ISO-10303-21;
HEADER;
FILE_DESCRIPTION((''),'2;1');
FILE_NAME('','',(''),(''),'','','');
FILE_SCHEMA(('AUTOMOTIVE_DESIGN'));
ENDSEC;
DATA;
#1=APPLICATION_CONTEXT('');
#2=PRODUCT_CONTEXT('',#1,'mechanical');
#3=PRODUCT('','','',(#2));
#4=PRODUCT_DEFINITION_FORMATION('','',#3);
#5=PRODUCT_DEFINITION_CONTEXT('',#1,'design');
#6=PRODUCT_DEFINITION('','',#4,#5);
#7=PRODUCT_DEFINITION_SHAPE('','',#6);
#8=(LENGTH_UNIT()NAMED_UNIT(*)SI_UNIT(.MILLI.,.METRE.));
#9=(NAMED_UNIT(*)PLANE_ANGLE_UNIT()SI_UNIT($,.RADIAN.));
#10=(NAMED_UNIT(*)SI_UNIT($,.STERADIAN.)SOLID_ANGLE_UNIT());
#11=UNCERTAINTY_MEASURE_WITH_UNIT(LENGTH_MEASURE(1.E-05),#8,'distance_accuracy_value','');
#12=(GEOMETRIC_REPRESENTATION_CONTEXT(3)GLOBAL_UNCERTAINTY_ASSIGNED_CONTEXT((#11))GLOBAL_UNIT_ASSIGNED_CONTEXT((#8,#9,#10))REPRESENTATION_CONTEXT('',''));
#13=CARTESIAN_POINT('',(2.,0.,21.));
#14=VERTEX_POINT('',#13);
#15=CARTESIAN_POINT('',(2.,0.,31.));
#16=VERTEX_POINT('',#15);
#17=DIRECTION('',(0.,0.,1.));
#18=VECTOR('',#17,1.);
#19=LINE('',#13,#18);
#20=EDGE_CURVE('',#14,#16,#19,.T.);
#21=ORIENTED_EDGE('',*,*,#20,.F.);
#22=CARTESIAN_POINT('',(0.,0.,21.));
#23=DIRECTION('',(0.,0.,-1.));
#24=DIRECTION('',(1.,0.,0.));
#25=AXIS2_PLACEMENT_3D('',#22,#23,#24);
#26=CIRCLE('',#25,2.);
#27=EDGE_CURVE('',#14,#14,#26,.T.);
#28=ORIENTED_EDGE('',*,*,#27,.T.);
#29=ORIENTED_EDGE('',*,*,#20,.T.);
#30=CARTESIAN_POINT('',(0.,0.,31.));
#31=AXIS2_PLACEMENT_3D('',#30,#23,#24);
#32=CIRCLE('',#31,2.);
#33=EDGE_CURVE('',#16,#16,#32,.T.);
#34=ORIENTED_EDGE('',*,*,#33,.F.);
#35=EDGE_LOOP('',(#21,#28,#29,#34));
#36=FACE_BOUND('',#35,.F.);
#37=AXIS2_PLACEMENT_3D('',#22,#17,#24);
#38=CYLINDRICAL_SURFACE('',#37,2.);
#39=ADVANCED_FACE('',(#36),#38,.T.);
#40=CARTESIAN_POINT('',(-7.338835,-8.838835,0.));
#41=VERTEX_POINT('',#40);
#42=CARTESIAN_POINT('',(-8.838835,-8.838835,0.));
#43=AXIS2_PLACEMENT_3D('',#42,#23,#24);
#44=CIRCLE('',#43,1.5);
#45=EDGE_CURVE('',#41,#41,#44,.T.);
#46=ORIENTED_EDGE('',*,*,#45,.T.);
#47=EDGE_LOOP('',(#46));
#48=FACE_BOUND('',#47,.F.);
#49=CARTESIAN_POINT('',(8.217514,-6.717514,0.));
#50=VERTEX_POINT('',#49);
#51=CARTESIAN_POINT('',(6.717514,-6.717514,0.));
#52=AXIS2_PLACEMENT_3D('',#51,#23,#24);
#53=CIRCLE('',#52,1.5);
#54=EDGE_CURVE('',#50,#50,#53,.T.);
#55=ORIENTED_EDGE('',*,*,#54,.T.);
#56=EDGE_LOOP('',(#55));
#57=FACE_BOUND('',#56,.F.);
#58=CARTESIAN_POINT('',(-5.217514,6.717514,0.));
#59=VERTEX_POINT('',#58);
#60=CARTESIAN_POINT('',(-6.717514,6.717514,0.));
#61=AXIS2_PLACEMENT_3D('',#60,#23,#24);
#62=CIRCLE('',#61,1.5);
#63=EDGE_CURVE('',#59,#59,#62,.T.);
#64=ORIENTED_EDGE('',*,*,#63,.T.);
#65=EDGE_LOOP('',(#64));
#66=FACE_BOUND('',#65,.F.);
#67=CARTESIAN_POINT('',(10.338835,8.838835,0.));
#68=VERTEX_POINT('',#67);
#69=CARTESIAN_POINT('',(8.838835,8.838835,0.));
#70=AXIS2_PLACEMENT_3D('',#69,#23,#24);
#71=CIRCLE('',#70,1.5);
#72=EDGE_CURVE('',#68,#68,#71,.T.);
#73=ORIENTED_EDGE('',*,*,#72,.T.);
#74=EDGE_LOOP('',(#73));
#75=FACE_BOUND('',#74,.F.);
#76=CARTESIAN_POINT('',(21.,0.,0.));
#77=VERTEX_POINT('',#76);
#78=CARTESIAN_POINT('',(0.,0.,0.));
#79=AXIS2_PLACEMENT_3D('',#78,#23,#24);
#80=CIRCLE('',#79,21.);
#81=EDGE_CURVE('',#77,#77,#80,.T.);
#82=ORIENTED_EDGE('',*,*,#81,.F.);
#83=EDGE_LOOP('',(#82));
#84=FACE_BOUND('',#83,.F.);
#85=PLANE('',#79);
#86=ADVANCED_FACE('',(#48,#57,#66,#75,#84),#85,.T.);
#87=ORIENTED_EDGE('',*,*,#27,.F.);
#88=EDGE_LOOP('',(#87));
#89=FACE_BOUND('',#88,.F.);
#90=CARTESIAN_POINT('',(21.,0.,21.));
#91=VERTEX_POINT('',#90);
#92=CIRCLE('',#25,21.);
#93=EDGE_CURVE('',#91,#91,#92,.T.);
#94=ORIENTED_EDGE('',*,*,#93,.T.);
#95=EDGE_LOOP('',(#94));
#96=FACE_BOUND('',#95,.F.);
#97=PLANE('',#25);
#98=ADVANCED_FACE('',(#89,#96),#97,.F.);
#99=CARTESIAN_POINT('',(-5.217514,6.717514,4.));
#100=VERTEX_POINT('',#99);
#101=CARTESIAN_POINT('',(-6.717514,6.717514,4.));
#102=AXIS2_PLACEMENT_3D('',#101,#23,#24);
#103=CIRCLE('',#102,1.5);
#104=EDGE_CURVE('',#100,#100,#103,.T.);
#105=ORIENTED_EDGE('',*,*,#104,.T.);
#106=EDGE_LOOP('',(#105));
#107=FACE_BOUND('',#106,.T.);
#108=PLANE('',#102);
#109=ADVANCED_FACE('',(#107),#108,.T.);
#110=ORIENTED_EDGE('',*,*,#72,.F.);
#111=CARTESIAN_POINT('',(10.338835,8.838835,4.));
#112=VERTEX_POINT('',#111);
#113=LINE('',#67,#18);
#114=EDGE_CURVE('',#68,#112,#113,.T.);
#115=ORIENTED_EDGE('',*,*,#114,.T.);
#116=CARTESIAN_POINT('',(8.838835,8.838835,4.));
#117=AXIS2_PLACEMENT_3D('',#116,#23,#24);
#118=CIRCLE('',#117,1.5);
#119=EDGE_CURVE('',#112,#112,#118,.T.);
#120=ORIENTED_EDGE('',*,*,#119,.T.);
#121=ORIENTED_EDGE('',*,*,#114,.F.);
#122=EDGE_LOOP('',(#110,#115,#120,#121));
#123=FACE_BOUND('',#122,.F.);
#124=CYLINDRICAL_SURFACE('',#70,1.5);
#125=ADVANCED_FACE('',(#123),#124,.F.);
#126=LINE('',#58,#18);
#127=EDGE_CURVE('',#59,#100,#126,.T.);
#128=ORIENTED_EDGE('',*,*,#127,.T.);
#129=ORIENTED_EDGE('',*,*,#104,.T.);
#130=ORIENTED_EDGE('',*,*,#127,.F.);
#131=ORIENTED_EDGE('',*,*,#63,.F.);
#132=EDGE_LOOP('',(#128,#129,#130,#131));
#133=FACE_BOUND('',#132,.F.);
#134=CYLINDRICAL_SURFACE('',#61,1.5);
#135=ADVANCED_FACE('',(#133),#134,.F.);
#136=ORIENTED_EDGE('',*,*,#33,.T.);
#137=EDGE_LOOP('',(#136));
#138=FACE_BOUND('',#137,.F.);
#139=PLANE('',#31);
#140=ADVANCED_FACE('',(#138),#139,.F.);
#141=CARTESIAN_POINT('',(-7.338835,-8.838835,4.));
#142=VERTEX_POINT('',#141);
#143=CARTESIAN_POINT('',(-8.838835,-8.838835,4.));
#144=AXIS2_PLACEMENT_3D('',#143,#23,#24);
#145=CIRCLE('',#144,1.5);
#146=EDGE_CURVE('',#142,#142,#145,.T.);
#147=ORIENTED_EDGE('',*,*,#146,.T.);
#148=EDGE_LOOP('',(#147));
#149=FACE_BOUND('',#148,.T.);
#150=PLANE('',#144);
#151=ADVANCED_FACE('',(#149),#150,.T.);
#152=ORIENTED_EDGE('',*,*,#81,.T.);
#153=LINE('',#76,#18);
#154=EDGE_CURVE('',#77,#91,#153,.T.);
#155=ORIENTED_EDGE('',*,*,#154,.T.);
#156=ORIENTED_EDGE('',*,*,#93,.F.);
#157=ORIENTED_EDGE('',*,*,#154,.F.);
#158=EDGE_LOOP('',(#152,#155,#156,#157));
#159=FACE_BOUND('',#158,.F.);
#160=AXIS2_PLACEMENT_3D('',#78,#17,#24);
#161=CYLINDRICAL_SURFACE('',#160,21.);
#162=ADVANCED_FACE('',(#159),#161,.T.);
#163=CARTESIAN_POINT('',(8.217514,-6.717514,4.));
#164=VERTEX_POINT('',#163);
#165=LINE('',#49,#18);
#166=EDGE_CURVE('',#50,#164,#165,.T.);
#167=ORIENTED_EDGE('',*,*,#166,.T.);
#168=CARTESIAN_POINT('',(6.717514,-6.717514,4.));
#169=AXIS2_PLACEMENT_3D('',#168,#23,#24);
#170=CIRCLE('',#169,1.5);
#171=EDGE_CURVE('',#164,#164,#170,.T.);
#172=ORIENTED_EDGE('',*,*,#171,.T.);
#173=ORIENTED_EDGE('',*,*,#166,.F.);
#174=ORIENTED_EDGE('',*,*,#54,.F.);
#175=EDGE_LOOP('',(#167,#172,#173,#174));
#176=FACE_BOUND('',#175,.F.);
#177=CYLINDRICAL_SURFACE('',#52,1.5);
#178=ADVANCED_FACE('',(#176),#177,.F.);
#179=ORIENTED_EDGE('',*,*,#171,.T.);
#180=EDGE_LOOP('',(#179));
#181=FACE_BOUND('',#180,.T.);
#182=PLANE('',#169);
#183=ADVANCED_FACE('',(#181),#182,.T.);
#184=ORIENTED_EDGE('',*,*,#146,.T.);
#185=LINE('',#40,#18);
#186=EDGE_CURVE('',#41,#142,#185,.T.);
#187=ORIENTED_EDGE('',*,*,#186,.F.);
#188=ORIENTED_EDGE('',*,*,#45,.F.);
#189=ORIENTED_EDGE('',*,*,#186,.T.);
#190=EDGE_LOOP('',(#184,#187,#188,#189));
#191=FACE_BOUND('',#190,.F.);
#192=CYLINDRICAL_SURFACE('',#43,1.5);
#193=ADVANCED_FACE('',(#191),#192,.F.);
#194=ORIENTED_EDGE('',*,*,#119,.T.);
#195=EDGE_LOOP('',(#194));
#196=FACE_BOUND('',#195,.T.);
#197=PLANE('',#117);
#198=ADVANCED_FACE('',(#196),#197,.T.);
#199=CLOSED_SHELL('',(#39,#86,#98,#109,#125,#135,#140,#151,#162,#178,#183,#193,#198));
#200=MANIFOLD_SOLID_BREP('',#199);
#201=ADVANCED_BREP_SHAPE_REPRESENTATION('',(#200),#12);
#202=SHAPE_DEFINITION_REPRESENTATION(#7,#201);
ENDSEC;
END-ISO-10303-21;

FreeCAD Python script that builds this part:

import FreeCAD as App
import Part
import Sketcher

V = App.Vector
Q = App.Units.Quantity


def add_polygon(sketch, points):
    """Adds a closed chain of lines whose ends are joined by coincident constraints."""
    first, n = sketch.GeometryCount, len(points)
    for a, b in zip(points, points[1:] + points[:1]):
        sketch.addGeometry(Part.LineSegment(App.Vector(*a, 0), App.Vector(*b, 0)), False)
    for i in range(n):
        sketch.addConstraint(Sketcher.Constraint("Coincident", first + i, 2, first + (i + 1) % n, 1))

doc = App.newDocument("Part")
body = doc.addObject("PartDesign::Body", "Body")

# Sketch on XZ plane
sketch1 = body.newObject("Sketcher::SketchObject", "Sketch")
sketch1.AttachmentSupport = (doc.getObject("XZ_Plane"), [""])
sketch1.MapMode = "FlatFace"
add_polygon(sketch1, [(0, 31), (0, 0), (21, 0), (21, 21), (2, 21), (2, 31)])  # lines 0-5
sketch1.addConstraint(Sketcher.Constraint("Vertical", 0))
sketch1.addConstraint(Sketcher.Constraint("Horizontal", 1))
sketch1.addConstraint(Sketcher.Constraint("Vertical", 2))
sketch1.addConstraint(Sketcher.Constraint("Horizontal", 3))
sketch1.addConstraint(Sketcher.Constraint("Vertical", 4))
sketch1.addConstraint(Sketcher.Constraint("Horizontal", 5))
sketch1.addConstraint(Sketcher.Constraint("Coincident", 0, 2, -1, 1))
sketch1.addConstraint(Sketcher.Constraint("Equal", 1, 2))
sketch1.addConstraint(Sketcher.Constraint("DistanceX", 1, 1, 1, 2, Q("21 mm")))
sketch1.addConstraint(Sketcher.Constraint("DistanceX", 3, 2, 3, 1, Q("19 mm")))
sketch1.addConstraint(Sketcher.Constraint("DistanceY", 0, 2, 0, 1, Q("31 mm")))
revolution = body.newObject("PartDesign::Revolution", "Revolution")
revolution.Profile = sketch1
revolution.ReferenceAxis = (sketch1, ["V_Axis"])
revolution.Angle = 360

# Sketch on XY plane
sketch2 = body.newObject("Sketcher::SketchObject", "Sketch001")
sketch2.AttachmentSupport = (doc.getObject("XY_Plane"), [""])
sketch2.MapMode = "FlatFace"
sketch2.addGeometry(Part.Circle(V(-6.717514, 6.717514, 0), V(0, 0, 1), 1.5), False)
sketch2.addGeometry(Part.Circle(V(-8.838835, -8.838835, 0), V(0, 0, 1), 1.5), False)
sketch2.addGeometry(Part.Circle(V(6.717514, -6.717514, 0), V(0, 0, 1), 1.5), False)
sketch2.addGeometry(Part.Circle(V(8.838835, 8.838835, 0), V(0, 0, 1), 1.5), False)
sketch2.addConstraint(Sketcher.Constraint("Equal", 0, 1))
sketch2.addConstraint(Sketcher.Constraint("Equal", 1, 2))
sketch2.addConstraint(Sketcher.Constraint("Equal", 2, 3))
sketch2.addConstraint(Sketcher.Constraint("Symmetric", 0, 3, 2, 3, -1, 1))
sketch2.addConstraint(Sketcher.Constraint("Symmetric", 1, 3, 3, 3, -1, 1))
sketch2.addConstraint(Sketcher.Constraint("Diameter", 0, Q("3 mm")))
sketch2.addConstraint(Sketcher.Constraint("DistanceX", 1, 3, 0, 3, Q("2.121321 mm")))
sketch2.addConstraint(Sketcher.Constraint("DistanceY", 1, 3, 0, 3, Q("15.556349 mm")))
sketch2.addConstraint(Sketcher.Constraint("DistanceX", 1, 3, 2, 3, Q("15.556349 mm")))
sketch2.addConstraint(Sketcher.Constraint("DistanceY", 1, 3, 2, 3, Q("2.121321 mm")))
pocket1 = body.newObject("PartDesign::Pocket", "Pocket")
pocket1.Profile = sketch2
pocket1.Length = 4
pocket1.Reversed = True

doc.recompute()
